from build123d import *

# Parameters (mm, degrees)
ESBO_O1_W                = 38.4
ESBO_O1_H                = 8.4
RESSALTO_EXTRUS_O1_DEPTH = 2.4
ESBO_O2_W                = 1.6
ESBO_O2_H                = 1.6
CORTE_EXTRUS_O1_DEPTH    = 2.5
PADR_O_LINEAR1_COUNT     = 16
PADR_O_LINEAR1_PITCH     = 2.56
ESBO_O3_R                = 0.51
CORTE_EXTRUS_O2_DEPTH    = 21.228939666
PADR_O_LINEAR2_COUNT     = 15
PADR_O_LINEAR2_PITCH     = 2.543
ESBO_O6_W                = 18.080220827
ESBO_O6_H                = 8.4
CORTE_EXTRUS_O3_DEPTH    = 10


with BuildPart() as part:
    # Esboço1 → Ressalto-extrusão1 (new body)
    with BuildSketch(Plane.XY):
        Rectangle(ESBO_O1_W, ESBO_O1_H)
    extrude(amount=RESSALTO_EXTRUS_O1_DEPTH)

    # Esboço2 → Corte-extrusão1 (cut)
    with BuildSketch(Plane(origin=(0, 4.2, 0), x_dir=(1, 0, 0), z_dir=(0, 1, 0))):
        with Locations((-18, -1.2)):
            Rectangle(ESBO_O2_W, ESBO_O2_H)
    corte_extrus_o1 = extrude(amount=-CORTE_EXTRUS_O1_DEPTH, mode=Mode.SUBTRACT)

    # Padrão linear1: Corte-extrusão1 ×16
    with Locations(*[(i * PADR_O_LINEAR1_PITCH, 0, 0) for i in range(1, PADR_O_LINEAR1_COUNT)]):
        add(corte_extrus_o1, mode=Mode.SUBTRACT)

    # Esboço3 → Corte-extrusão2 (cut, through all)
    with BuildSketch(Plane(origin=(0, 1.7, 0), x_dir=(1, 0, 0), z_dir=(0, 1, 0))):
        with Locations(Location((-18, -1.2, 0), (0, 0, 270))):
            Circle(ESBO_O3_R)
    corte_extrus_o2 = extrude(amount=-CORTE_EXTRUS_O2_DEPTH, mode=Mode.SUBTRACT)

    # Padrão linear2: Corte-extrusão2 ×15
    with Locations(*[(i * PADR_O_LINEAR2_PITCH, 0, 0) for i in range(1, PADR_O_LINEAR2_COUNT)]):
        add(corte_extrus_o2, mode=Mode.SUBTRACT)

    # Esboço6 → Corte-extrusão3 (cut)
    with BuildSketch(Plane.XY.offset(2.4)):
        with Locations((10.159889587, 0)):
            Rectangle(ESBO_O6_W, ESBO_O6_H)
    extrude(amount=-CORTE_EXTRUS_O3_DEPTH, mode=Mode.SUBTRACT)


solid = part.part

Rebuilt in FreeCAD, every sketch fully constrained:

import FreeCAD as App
import Part
import Sketcher

V = App.Vector
Q = App.Units.Quantity


def add_polygon(sketch, points):
    """Adds a closed chain of lines whose ends are joined by coincident constraints."""
    first, n = sketch.GeometryCount, len(points)
    for a, b in zip(points, points[1:] + points[:1]):
        sketch.addGeometry(Part.LineSegment(App.Vector(*a, 0), App.Vector(*b, 0)), False)
    for i in range(n):
        sketch.addConstraint(Sketcher.Constraint("Coincident", first + i, 2, first + (i + 1) % n, 1))

doc = App.newDocument("Part")
body = doc.addObject("PartDesign::Body", "Body")

sketch1 = body.newObject("Sketcher::SketchObject", "Sketch")
sketch1.AttachmentSupport = (doc.getObject("XY_Plane"), [""])
sketch1.MapMode = "FlatFace"
add_polygon(sketch1, [(-19, 4), (-19, -4), (19, -4), (19, 4)])
sketch1.addConstraint([
    Sketcher.Constraint("Vertical", 0),
    Sketcher.Constraint("Horizontal", 1),
    Sketcher.Constraint("Vertical", 2),
    Sketcher.Constraint("Horizontal", 3),
    Sketcher.Constraint("Symmetric", 0, 2, 2, 2, -1, 1),
    Sketcher.Constraint("DistanceX", 1, 1, 1, 2, Q("38.4 mm")),
    Sketcher.Constraint("DistanceY", 0, 2, 0, 1, Q("8.4 mm")),
])
pad1 = body.newObject("PartDesign::Pad", "Pad")
pad1.Profile = sketch1
pad1.Length = 2.4

sketch2 = body.newObject("Sketcher::SketchObject", "Sketch001")
sketch2.AttachmentSupport = (doc.getObject("XZ_Plane"), [""])
sketch2.MapMode = "FlatFace"
sketch2.AttachmentOffset = App.Placement(V(0, 0, -4.2), App.Rotation())
add_polygon(sketch2, [(-18.8, 0.4), (-18.8, 2), (-17.2, 2), (-17.2, 0.4)])
sketch2.addConstraint([
    Sketcher.Constraint("Vertical", 0),
    Sketcher.Constraint("Horizontal", 1),
    Sketcher.Constraint("Vertical", 2),
    Sketcher.Constraint("Horizontal", 3),
    Sketcher.Constraint("Equal", 3, 0),
    Sketcher.Constraint("DistanceX", 1, 1, 1, 2, Q("1.6 mm")),
    Sketcher.Constraint("DistanceY", -1, 1, 0, 2, Q("2 mm")),
    Sketcher.Constraint("DistanceX", 0, 2, -1, 1, Q("18.8 mm")),
])
pocket1 = body.newObject("PartDesign::Pocket", "Pocket")
pocket1.Profile = sketch2
pocket1.Length = 2.5
pocket1.Reversed = True
doc.recompute()

linearpattern = body.newObject("PartDesign::LinearPattern", "LinearPattern")
linearpattern.Originals = [pocket1]
linearpattern.Direction = (doc.getObject("X_Axis"), [""])
linearpattern.Mode = "offset"
linearpattern.Offset = 2.56
linearpattern.Occurrences = 16
body.Tip = linearpattern

sketch3 = body.newObject("Sketcher::SketchObject", "Sketch002")
sketch3.AttachmentSupport = (doc.getObject("XZ_Plane"), [""])
sketch3.MapMode = "FlatFace"
sketch3.AttachmentOffset = App.Placement(V(0, 0, -1.7), App.Rotation())
sketch3.addGeometry(Part.Circle(V(-18, 1.2, 0), V(0, 0, 1), 0.5), False)
sketch3.addConstraint([
    Sketcher.Constraint("Diameter", 0, Q("1.02 mm")),
    Sketcher.Constraint("DistanceX", 0, 3, -1, 1, Q("18 mm")),
    Sketcher.Constraint("DistanceY", -1, 1, 0, 3, Q("1.2 mm")),
])
pocket2 = body.newObject("PartDesign::Pocket", "Pocket001")
pocket2.Profile = sketch3
pocket2.Type = "ThroughAll"
pocket2.Reversed = True
doc.recompute()

linearpattern2 = body.newObject("PartDesign::LinearPattern", "LinearPattern001")
linearpattern2.Originals = [pocket2]
linearpattern2.Direction = (doc.getObject("X_Axis"), [""])
linearpattern2.Mode = "offset"
linearpattern2.Offset = 2.543
linearpattern2.Occurrences = 15
body.Tip = linearpattern2

sketch4 = body.newObject("Sketcher::SketchObject", "Sketch003")
sketch4.AttachmentSupport = (doc.getObject("XY_Plane"), [""])
sketch4.MapMode = "FlatFace"
sketch4.AttachmentOffset = App.Placement(V(0, 0, 2.4), App.Rotation())
add_polygon(sketch4, [(1, 4), (1, -4), (19, -4), (19, 4)])
sketch4.addConstraint([
    Sketcher.Constraint("Vertical", 0),
    Sketcher.Constraint("Horizontal", 1),
    Sketcher.Constraint("Vertical", 2),
    Sketcher.Constraint("Horizontal", 3),
    Sketcher.Constraint("DistanceY", 0, 2, 0, 1, Q("8.4 mm")),
    Sketcher.Constraint("DistanceY", 0, 2, -1, 1, Q("4.2 mm")),
    Sketcher.Constraint("DistanceX", -1, 1, 1, 2, Q("19.2 mm")),
    Sketcher.Constraint("DistanceX", 1, 1, 1, 2, Q("18.080221 mm")),
])
pocket3 = body.newObject("PartDesign::Pocket", "Pocket002")
pocket3.Profile = sketch4
pocket3.Length = 10

doc.recompute()
